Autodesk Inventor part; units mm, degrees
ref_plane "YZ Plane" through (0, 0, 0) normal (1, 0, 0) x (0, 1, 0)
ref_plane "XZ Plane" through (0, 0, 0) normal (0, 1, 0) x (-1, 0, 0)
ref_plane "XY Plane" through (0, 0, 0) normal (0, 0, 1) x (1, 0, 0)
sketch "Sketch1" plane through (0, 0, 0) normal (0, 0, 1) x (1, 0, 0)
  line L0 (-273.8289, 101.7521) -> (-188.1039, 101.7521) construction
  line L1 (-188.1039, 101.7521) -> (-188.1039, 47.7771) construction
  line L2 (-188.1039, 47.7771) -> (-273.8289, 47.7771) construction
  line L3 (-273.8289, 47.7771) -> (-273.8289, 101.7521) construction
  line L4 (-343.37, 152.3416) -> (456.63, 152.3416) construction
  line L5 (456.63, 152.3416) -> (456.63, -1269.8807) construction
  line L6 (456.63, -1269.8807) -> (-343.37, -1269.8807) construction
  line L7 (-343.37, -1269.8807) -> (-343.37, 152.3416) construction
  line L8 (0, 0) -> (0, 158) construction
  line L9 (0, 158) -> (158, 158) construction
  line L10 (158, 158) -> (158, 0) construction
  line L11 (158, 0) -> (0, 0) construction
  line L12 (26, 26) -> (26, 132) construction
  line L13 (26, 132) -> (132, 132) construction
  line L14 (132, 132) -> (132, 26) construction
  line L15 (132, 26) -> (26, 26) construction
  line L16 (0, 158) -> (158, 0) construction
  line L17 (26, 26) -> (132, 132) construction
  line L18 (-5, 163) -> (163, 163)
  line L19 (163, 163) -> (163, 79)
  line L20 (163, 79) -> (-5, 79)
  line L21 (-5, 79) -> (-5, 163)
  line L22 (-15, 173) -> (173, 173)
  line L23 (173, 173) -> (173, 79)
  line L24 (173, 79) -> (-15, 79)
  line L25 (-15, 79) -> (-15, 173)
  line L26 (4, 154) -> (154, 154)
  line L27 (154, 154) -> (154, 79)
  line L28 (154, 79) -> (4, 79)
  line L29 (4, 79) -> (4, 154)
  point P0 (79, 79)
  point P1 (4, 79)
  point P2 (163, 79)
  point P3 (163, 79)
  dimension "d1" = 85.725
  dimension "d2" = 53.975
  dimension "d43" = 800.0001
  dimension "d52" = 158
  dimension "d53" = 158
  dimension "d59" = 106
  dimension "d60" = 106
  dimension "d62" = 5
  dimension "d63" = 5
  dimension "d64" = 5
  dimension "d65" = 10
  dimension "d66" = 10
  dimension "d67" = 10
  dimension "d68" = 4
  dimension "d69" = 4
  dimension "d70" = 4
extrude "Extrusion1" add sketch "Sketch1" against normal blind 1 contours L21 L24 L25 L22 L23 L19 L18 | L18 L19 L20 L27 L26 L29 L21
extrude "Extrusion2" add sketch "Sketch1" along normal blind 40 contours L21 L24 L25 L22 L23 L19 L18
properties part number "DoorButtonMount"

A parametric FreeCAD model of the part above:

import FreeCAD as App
import Part
import Sketcher
Q = App.Units.Quantity

doc = App.newDocument("Part")
body = doc.addObject("PartDesign::Body", "Body")

# Sketch on XY plane
sketch1 = body.newObject("Sketcher::SketchObject", "Sketch")
sketch1.AttachmentSupport = (doc.getObject("XY_Plane"), [""])
sketch1.MapMode = "FlatFace"
sketch1.addGeometry(Part.LineSegment(App.Vector(-15, 79, 0), App.Vector(4, 79, 0)), False)
sketch1.addGeometry(Part.LineSegment(App.Vector(4, 79, 0), App.Vector(4, 154, 0)), False)
sketch1.addGeometry(Part.LineSegment(App.Vector(4, 154, 0), App.Vector(154, 154, 0)), False)
sketch1.addGeometry(Part.LineSegment(App.Vector(154, 154, 0), App.Vector(154, 79, 0)), False)
sketch1.addGeometry(Part.LineSegment(App.Vector(154, 79, 0), App.Vector(173, 79, 0)), False)
sketch1.addGeometry(Part.LineSegment(App.Vector(173, 79, 0), App.Vector(173, 173, 0)), False)
sketch1.addGeometry(Part.LineSegment(App.Vector(173, 173, 0), App.Vector(-15, 173, 0)), False)
sketch1.addGeometry(Part.LineSegment(App.Vector(-15, 173, 0), App.Vector(-15, 79, 0)), False)
sketch1.addConstraint(Sketcher.Constraint("Coincident", 0, 2, 1, 1))
sketch1.addConstraint(Sketcher.Constraint("Coincident", 1, 2, 2, 1))
sketch1.addConstraint(Sketcher.Constraint("Coincident", 2, 2, 3, 1))
sketch1.addConstraint(Sketcher.Constraint("Coincident", 3, 2, 4, 1))
sketch1.addConstraint(Sketcher.Constraint("Coincident", 4, 2, 5, 1))
sketch1.addConstraint(Sketcher.Constraint("Coincident", 5, 2, 6, 1))
sketch1.addConstraint(Sketcher.Constraint("Coincident", 6, 2, 7, 1))
sketch1.addConstraint(Sketcher.Constraint("Coincident", 7, 2, 0, 1))
sketch1.addConstraint(Sketcher.Constraint("Horizontal", 0))
sketch1.addConstraint(Sketcher.Constraint("Vertical", 1))
sketch1.addConstraint(Sketcher.Constraint("Horizontal", 2))
sketch1.addConstraint(Sketcher.Constraint("Vertical", 3))
sketch1.addConstraint(Sketcher.Constraint("Horizontal", 4))
sketch1.addConstraint(Sketcher.Constraint("Vertical", 5))
sketch1.addConstraint(Sketcher.Constraint("Horizontal", 6))
sketch1.addConstraint(Sketcher.Constraint("Vertical", 7))
sketch1.addConstraint(Sketcher.Constraint("Horizontal", 0, 2, 3, 2))
sketch1.addConstraint(Sketcher.Constraint("Equal", 0, 4))
sketch1.addConstraint(Sketcher.Constraint("DistanceX", -1, 1, 0, 2, Q("4 mm")))
sketch1.addConstraint(Sketcher.Constraint("DistanceX", 0, 1, 0, 2, Q("19 mm")))
sketch1.addConstraint(Sketcher.Constraint("DistanceX", 2, 1, 2, 2, Q("150 mm")))
sketch1.addConstraint(Sketcher.Constraint("DistanceY", 1, 1, 1, 2, Q("75 mm")))
sketch1.addConstraint(Sketcher.Constraint("DistanceY", 5, 1, 5, 2, Q("94 mm")))
sketch1.addConstraint(Sketcher.Constraint("DistanceY", -1, 1, 0, 2, Q("79 mm")))
pad1 = body.newObject("PartDesign::Pad", "Pad")
pad1.Profile = sketch1
pad1.Length = 1
pad1.Reversed = True

# Sketch on XY plane
sketch2 = body.newObject("Sketcher::SketchObject", "Sketch001")
sketch2.AttachmentSupport = (doc.getObject("XY_Plane"), [""])
sketch2.MapMode = "FlatFace"
sketch2.addGeometry(Part.LineSegment(App.Vector(-5, 79, 0), App.Vector(-5, 163, 0)), False)
sketch2.addGeometry(Part.LineSegment(App.Vector(-5, 163, 0), App.Vector(163, 163, 0)), False)
sketch2.addGeometry(Part.LineSegment(App.Vector(163, 163, 0), App.Vector(163, 79, 0)), False)
sketch2.addGeometry(Part.LineSegment(App.Vector(163, 79, 0), App.Vector(173, 79, 0)), False)
sketch2.addGeometry(Part.LineSegment(App.Vector(173, 79, 0), App.Vector(173, 173, 0)), False)
sketch2.addGeometry(Part.LineSegment(App.Vector(173, 173, 0), App.Vector(-15, 173, 0)), False)
sketch2.addGeometry(Part.LineSegment(App.Vector(-15, 173, 0), App.Vector(-15, 79, 0)), False)
sketch2.addGeometry(Part.LineSegment(App.Vector(-15, 79, 0), App.Vector(-5, 79, 0)), False)
sketch2.addConstraint(Sketcher.Constraint("Coincident", 0, 2, 1, 1))
sketch2.addConstraint(Sketcher.Constraint("Coincident", 1, 2, 2, 1))
sketch2.addConstraint(Sketcher.Constraint("Coincident", 2, 2, 3, 1))
sketch2.addConstraint(Sketcher.Constraint("Coincident", 3, 2, 4, 1))
sketch2.addConstraint(Sketcher.Constraint("Coincident", 4, 2, 5, 1))
sketch2.addConstraint(Sketcher.Constraint("Coincident", 5, 2, 6, 1))
sketch2.addConstraint(Sketcher.Constraint("Coincident", 6, 2, 7, 1))
sketch2.addConstraint(Sketcher.Constraint("Coincident", 7, 2, 0, 1))
sketch2.addConstraint(Sketcher.Constraint("Vertical", 0))
sketch2.addConstraint(Sketcher.Constraint("Horizontal", 1))
sketch2.addConstraint(Sketcher.Constraint("Vertical", 2))
sketch2.addConstraint(Sketcher.Constraint("Horizontal", 3))
sketch2.addConstraint(Sketcher.Constraint("Vertical", 4))
sketch2.addConstraint(Sketcher.Constraint("Horizontal", 5))
sketch2.addConstraint(Sketcher.Constraint("Vertical", 6))
sketch2.addConstraint(Sketcher.Constraint("Horizontal", 7))
sketch2.addConstraint(Sketcher.Constraint("Horizontal", 3, 2, 6, 2))
sketch2.addConstraint(Sketcher.Constraint("Equal", 3, 7))
sketch2.addConstraint(Sketcher.Constraint("DistanceX", 3, 1, 3, 2, Q("10 mm")))
sketch2.addConstraint(Sketcher.Constraint("DistanceX", 0, 2, -1, 1, Q("5 mm")))
sketch2.addConstraint(Sketcher.Constraint("DistanceY", 1, 2, 4, 2, Q("10 mm")))
sketch2.addConstraint(Sketcher.Constraint("DistanceX", 1, 1, 1, 2, Q("168 mm")))
sketch2.addConstraint(Sketcher.Constraint("DistanceY", 0, 1, 0, 2, Q("84 mm")))
sketch2.addConstraint(Sketcher.Constraint("DistanceY", -1, 1, 0, 2, Q("163 mm")))
pad2 = body.newObject("PartDesign::Pad", "Pad001")
pad2.Profile = sketch2
pad2.Length = 40

doc.recompute()
